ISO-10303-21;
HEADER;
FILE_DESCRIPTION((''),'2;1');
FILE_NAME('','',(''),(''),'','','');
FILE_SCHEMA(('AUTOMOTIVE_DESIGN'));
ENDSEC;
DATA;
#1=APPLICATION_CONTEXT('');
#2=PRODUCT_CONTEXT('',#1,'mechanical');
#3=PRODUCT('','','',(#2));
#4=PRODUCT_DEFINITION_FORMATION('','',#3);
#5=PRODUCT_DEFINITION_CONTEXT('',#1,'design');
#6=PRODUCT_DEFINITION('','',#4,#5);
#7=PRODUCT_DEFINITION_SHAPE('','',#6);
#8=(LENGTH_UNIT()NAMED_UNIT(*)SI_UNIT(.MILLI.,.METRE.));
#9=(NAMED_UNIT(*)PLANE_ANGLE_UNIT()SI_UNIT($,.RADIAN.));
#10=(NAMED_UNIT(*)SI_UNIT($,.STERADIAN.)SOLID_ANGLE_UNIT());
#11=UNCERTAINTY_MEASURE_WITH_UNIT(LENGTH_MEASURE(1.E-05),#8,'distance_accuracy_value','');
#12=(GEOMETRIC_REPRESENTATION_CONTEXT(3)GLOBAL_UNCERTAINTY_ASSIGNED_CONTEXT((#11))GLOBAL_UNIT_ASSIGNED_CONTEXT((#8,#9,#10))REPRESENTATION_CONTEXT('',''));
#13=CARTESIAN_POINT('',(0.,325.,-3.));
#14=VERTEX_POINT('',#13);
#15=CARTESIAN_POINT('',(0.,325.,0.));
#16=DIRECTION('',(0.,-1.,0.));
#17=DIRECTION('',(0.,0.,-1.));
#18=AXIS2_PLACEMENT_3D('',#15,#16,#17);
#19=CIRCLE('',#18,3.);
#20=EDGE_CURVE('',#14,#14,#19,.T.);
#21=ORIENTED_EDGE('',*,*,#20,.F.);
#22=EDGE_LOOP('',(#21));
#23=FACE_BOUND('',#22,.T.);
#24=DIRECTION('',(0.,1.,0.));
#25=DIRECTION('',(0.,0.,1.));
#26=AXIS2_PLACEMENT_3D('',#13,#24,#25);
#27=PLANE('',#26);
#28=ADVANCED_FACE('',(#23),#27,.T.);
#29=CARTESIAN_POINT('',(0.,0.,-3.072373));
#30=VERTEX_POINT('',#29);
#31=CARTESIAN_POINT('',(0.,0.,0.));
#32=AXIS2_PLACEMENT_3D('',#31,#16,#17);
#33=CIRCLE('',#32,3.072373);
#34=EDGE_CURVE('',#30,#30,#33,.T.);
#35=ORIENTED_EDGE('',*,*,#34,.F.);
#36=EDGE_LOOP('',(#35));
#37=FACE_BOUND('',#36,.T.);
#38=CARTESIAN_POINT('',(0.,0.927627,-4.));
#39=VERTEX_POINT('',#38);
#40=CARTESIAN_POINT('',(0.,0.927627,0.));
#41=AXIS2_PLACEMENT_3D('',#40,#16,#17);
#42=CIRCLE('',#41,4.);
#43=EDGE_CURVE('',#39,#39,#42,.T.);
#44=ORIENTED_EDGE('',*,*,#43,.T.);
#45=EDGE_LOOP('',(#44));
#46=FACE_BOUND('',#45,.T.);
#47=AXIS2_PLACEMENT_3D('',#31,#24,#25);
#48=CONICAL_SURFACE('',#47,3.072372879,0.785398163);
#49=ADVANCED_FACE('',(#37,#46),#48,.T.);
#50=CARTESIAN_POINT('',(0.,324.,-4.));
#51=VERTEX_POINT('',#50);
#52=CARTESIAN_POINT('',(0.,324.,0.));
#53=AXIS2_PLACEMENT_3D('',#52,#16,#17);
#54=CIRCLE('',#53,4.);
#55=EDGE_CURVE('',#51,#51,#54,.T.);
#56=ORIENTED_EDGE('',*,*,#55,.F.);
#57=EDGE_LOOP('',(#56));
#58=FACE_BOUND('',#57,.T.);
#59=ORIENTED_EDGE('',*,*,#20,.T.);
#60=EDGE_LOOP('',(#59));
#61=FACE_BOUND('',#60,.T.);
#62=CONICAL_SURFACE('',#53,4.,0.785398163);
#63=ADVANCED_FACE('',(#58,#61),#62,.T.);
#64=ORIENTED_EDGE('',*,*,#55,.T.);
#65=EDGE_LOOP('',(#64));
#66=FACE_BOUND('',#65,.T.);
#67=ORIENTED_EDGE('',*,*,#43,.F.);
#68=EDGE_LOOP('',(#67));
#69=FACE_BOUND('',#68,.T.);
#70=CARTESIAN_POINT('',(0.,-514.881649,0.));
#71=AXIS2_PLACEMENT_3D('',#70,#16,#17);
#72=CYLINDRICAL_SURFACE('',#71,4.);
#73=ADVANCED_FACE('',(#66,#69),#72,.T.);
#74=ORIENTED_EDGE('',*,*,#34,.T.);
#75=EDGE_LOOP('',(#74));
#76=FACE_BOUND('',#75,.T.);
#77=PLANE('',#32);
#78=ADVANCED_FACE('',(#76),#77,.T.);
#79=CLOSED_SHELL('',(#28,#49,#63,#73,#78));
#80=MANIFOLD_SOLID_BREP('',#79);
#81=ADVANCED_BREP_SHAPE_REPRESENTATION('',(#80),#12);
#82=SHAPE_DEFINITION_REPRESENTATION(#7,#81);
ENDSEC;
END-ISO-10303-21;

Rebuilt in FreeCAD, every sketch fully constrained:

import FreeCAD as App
import Part
import Sketcher
from FreeCAD import Vector
Q = App.Units.Quantity


def add_polygon(sketch, points):
    """Adds a closed chain of lines whose ends are joined by coincident constraints."""
    first, n = sketch.GeometryCount, len(points)
    for a, b in zip(points, points[1:] + points[:1]):
        sketch.addGeometry(Part.LineSegment(App.Vector(*a, 0), App.Vector(*b, 0)), False)
    for i in range(n):
        sketch.addConstraint(Sketcher.Constraint("Coincident", first + i, 2, first + (i + 1) % n, 1))

doc = App.newDocument("Part")
body = doc.addObject("PartDesign::Body", "Body")

sketch1 = doc.addObject("Sketcher::SketchObject", "Sketch")
body.addObject(sketch1)
sketch1.AttachmentSupport = (doc.YZ_Plane, [""])
sketch1.MapMode = "FlatFace"
add_polygon(sketch1, [(325, 0), (0, 0), (0, -3.072373), (0.927627, -4), (324, -4), (325, -3)])
sketch1.addConstraint([
    Sketcher.Constraint("Horizontal", 0),
    Sketcher.Constraint("Vertical", 1),
    Sketcher.Constraint("Horizontal", 3),
    Sketcher.Constraint("Vertical", 5),
    Sketcher.Constraint("Coincident", 0, 2, -1, 1),
    Sketcher.Constraint("Perpendicular", 2, 4),
    Sketcher.Constraint("DistanceX", 0, 2, 0, 1, Q("325 mm")),
    Sketcher.Constraint("DistanceY", 5, 1, 5, 2, Q("3 mm")),
    Sketcher.Constraint("Angle", 2, Q("-45 deg")),
    Sketcher.Constraint("DistanceY", 2, 2, -1, 1, Q("4 mm")),
    Sketcher.Constraint("DistanceX", 3, 1, 3, 2, Q("323.072373 mm")),
])
revolution = doc.addObject("PartDesign::Revolution", "Revolution")
body.addObject(revolution)
revolution.Profile = sketch1
revolution.ReferenceAxis = (sketch1, ["H_Axis"])
revolution.Angle = 360

doc.recompute()
